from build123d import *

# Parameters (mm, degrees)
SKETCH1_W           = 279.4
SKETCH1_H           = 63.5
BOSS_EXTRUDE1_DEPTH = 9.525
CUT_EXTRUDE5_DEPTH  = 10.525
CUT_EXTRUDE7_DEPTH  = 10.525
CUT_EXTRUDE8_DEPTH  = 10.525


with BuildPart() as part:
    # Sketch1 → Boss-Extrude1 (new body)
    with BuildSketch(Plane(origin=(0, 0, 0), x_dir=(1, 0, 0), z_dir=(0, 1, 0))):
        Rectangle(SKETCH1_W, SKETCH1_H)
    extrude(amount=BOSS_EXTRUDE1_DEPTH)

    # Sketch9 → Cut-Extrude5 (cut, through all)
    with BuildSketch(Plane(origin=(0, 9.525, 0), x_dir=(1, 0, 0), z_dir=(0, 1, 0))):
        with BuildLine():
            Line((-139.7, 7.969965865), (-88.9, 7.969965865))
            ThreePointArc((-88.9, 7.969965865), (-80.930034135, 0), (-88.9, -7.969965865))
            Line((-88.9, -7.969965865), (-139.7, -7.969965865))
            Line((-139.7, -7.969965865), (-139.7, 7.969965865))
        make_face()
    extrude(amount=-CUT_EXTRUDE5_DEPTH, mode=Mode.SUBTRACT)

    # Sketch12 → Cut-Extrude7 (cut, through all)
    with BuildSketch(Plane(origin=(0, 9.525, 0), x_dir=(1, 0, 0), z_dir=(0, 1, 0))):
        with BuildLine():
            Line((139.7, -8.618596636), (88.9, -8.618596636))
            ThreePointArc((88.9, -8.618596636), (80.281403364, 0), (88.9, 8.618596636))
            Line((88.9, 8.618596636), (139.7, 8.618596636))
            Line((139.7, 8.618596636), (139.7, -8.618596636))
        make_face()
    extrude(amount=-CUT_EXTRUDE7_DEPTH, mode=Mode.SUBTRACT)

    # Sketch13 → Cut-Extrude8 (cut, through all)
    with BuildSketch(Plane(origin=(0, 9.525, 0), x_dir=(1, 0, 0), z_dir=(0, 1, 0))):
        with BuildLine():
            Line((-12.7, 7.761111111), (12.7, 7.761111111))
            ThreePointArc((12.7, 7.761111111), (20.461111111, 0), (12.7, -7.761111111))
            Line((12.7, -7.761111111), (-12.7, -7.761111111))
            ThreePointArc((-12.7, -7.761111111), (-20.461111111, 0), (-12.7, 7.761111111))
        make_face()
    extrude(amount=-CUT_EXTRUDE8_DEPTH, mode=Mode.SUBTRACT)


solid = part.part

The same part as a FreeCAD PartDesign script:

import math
import FreeCAD as App
import Part
import Sketcher
from FreeCAD import Vector
Q = App.Units.Quantity


def add_polygon(sketch, points):
    """Adds a closed chain of lines whose ends are joined by coincident constraints."""
    first, n = sketch.GeometryCount, len(points)
    for a, b in zip(points, points[1:] + points[:1]):
        sketch.addGeometry(Part.LineSegment(App.Vector(*a, 0), App.Vector(*b, 0)), False)
    for i in range(n):
        sketch.addConstraint(Sketcher.Constraint("Coincident", first + i, 2, first + (i + 1) % n, 1))

doc = App.newDocument("Part")
body = doc.addObject("PartDesign::Body", "Body")

# Sketch on XZ plane
sketch1 = doc.addObject("Sketcher::SketchObject", "Sketch")
body.addObject(sketch1)
sketch1.AttachmentSupport = (doc.XZ_Plane, [""])
sketch1.MapMode = "FlatFace"
add_polygon(sketch1, [(-140, -32), (-140, 32), (140, 32), (140, -32)])  # lines 0-3
sketch1.addConstraint([
    Sketcher.Constraint("Vertical", 0),
    Sketcher.Constraint("Horizontal", 1),
    Sketcher.Constraint("Vertical", 2),
    Sketcher.Constraint("Horizontal", 3),
    Sketcher.Constraint("Symmetric", 0, 2, 2, 2, -1, 1),
    Sketcher.Constraint("DistanceX", 1, 1, 1, 2, Q("11 in")),
    Sketcher.Constraint("DistanceY", 0, 1, 0, 2, Q("2.5 in")),
])
pad1 = doc.addObject("PartDesign::Pad", "Pad")
body.addObject(pad1)
pad1.Profile = sketch1
pad1.Length = Q("0.375 in")
pad1.Reversed = True

# Sketch on XZ plane
sketch2 = doc.addObject("Sketcher::SketchObject", "Sketch001")
body.addObject(sketch2)
sketch2.AttachmentSupport = (doc.XZ_Plane, [""])
sketch2.MapMode = "FlatFace"
sketch2.AttachmentOffset = App.Placement(Vector(0, 0, -0.375 * 25.4), App.Rotation())
sketch2.addGeometry([
    Part.LineSegment(Vector(-89, -8, 0), Vector(-140, -8, 0)),
    Part.LineSegment(Vector(-140, -8, 0), Vector(-140, 8, 0)),
    Part.LineSegment(Vector(-140, 8, 0), Vector(-89, 8, 0)),
    Part.ArcOfCircle(Part.Circle(Vector(-89, 0, 0), Vector(0, 0, 1), 8), math.radians(-90), math.radians(90)),
], False)
sketch2.addConstraint([
    Sketcher.Constraint("Coincident", 0, 2, 1, 1),
    Sketcher.Constraint("Coincident", 1, 2, 2, 1),
    Sketcher.Constraint("Tangent", 2, 2, 3, 2),
    Sketcher.Constraint("Tangent", 3, 1, 0, 1),
    Sketcher.Constraint("Horizontal", 0),
    Sketcher.Constraint("Vertical", 1),
    Sketcher.Constraint("Horizontal", 2),
    Sketcher.Constraint("PointOnObject", 3, 3, -1),
    Sketcher.Constraint("DistanceX", 0, 2, 0, 1, Q("2 in")),
    Sketcher.Constraint("DistanceX", 3, 3, -1, 1, Q("3.5 in")),
    Sketcher.Constraint("Radius", 3, Q("7.969966 mm")),
])
pocket1 = doc.addObject("PartDesign::Pocket", "Pocket")
body.addObject(pocket1)
pocket1.Profile = sketch2
pocket1.Type = "ThroughAll"
pocket1.Reversed = True

# Sketch on XZ plane
sketch3 = doc.addObject("Sketcher::SketchObject", "Sketch002")
body.addObject(sketch3)
sketch3.AttachmentSupport = (doc.XZ_Plane, [""])
sketch3.MapMode = "FlatFace"
sketch3.AttachmentOffset = App.Placement(Vector(0, 0, -0.375 * 25.4), App.Rotation())
sketch3.addGeometry([
    Part.LineSegment(Vector(89, 9, 0), Vector(140, 9, 0)),
    Part.LineSegment(Vector(140, 9, 0), Vector(140, -9, 0)),
    Part.LineSegment(Vector(140, -9, 0), Vector(89, -9, 0)),
    Part.ArcOfCircle(Part.Circle(Vector(89, 0, 0), Vector(0, 0, 1), 9), math.radians(90), math.radians(270)),
], False)
sketch3.addConstraint([
    Sketcher.Constraint("Coincident", 0, 2, 1, 1),
    Sketcher.Constraint("Coincident", 1, 2, 2, 1),
    Sketcher.Constraint("Tangent", 2, 2, 3, 2),
    Sketcher.Constraint("Tangent", 3, 1, 0, 1),
    Sketcher.Constraint("Horizontal", 0),
    Sketcher.Constraint("Vertical", 1),
    Sketcher.Constraint("Horizontal", 2),
    Sketcher.Constraint("PointOnObject", 3, 3, -1),
    Sketcher.Constraint("DistanceX", 0, 1, 0, 2, Q("2 in")),
    Sketcher.Constraint("DistanceX", -1, 1, 3, 3, Q("3.5 in")),
    Sketcher.Constraint("Radius", 3, Q("8.618597 mm")),
])
pocket2 = doc.addObject("PartDesign::Pocket", "Pocket001")
body.addObject(pocket2)
pocket2.Profile = sketch3
pocket2.Type = "ThroughAll"
pocket2.Reversed = True

# Sketch on XZ plane
sketch4 = doc.addObject("Sketcher::SketchObject", "Sketch003")
body.addObject(sketch4)
sketch4.AttachmentSupport = (doc.XZ_Plane, [""])
sketch4.MapMode = "FlatFace"
sketch4.AttachmentOffset = App.Placement(Vector(0, 0, -0.375 * 25.4), App.Rotation())
sketch4.addGeometry([
    Part.LineSegment(Vector(13, -8, 0), Vector(-13, -8, 0)),
    Part.ArcOfCircle(Part.Circle(Vector(-13, 0, 0), Vector(0, 0, 1), 8), math.radians(90), math.radians(270)),
    Part.LineSegment(Vector(-13, 8, 0), Vector(13, 8, 0)),
    Part.ArcOfCircle(Part.Circle(Vector(13, 0, 0), Vector(0, 0, 1), 8), math.radians(-90), math.radians(90)),
], False)
sketch4.addConstraint([
    Sketcher.Constraint("Tangent", 0, 2, 1, 2),
    Sketcher.Constraint("Tangent", 1, 1, 2, 1),
    Sketcher.Constraint("Tangent", 2, 2, 3, 2),
    Sketcher.Constraint("Tangent", 3, 1, 0, 1),
    Sketcher.Constraint("Horizontal", 0),
    Sketcher.Constraint("Horizontal", 2),
    Sketcher.Constraint("Symmetric", 1, 3, 3, 3, -1, 1),
    Sketcher.Constraint("DistanceX", 0, 2, 0, 1, Q("1 in")),
    Sketcher.Constraint("Radius", 1, Q("7.761111 mm")),
])
pocket3 = doc.addObject("PartDesign::Pocket", "Pocket002")
body.addObject(pocket3)
pocket3.Profile = sketch4
pocket3.Type = "ThroughAll"
pocket3.Reversed = True

doc.recompute()
